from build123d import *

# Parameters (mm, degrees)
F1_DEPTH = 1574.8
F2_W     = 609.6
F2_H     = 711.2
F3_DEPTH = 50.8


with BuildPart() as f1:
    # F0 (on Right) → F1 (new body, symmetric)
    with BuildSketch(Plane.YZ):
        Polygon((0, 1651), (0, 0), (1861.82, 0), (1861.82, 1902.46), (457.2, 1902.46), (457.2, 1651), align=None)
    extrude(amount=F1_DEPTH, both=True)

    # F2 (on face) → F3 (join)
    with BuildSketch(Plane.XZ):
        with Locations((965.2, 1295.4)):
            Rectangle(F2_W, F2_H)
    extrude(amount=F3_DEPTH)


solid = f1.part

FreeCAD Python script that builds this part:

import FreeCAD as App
import Part
import Sketcher
from FreeCAD import Vector
Q = App.Units.Quantity


def add_polygon(sketch, points):
    """Adds a closed chain of lines whose ends are joined by coincident constraints."""
    first, n = sketch.GeometryCount, len(points)
    for a, b in zip(points, points[1:] + points[:1]):
        sketch.addGeometry(Part.LineSegment(App.Vector(*a, 0), App.Vector(*b, 0)), False)
    for i in range(n):
        sketch.addConstraint(Sketcher.Constraint("Coincident", first + i, 2, first + (i + 1) % n, 1))

doc = App.newDocument("Part")
body = doc.addObject("PartDesign::Body", "Body")

# Sketch on YZ plane
sketch1 = body.newObject("Sketcher::SketchObject", "Sketch")
sketch1.AttachmentSupport = (doc.getObject("YZ_Plane"), [""])
sketch1.MapMode = "FlatFace"
add_polygon(sketch1, [(0, 1651), (0, 0), (1862, 0), (1862, 1902), (457, 1902), (457, 1651)])  # lines 0-5
sketch1.addConstraint([
    Sketcher.Constraint("Vertical", 0),
    Sketcher.Constraint("Horizontal", 1),
    Sketcher.Constraint("Vertical", 2),
    Sketcher.Constraint("Horizontal", 3),
    Sketcher.Constraint("Vertical", 4),
    Sketcher.Constraint("Horizontal", 5),
    Sketcher.Constraint("Coincident", 0, 2, -1, 1),
    Sketcher.Constraint("DistanceX", 5, 2, 5, 1, Q("18 in")),
    Sketcher.Constraint("DistanceY", 0, 2, 0, 1, Q("65 in")),
    Sketcher.Constraint("DistanceX", 1, 1, 1, 2, Q("73.3 in")),
    Sketcher.Constraint("DistanceY", 2, 1, 2, 2, Q("74.9 in")),
])
pad1 = body.newObject("PartDesign::Pad", "Pad")
pad1.Profile = sketch1
pad1.Length = Q("124 in")
pad1.Midplane = True

# Sketch on XZ plane
sketch2 = body.newObject("Sketcher::SketchObject", "Sketch001")
sketch2.AttachmentSupport = (doc.getObject("XZ_Plane"), [""])
sketch2.MapMode = "FlatFace"
add_polygon(sketch2, [(660, 1651), (660, 940), (1270, 940), (1270, 1651)])  # lines 0-3
sketch2.addConstraint([
    Sketcher.Constraint("Vertical", 0),
    Sketcher.Constraint("Horizontal", 1),
    Sketcher.Constraint("Vertical", 2),
    Sketcher.Constraint("Horizontal", 3),
    Sketcher.Constraint("DistanceX", 1, 1, 1, 2, Q("24 in")),
    Sketcher.Constraint("DistanceY", 0, 2, 0, 1, Q("28 in")),
    Sketcher.Constraint("DistanceX", -1, 1, 0, 2, Q("26 in")),
    Sketcher.Constraint("DistanceY", -1, 1, 0, 2, Q("37 in")),
])
pad2 = body.newObject("PartDesign::Pad", "Pad001")
pad2.Profile = sketch2
pad2.Length = Q("2 in")

doc.recompute()
